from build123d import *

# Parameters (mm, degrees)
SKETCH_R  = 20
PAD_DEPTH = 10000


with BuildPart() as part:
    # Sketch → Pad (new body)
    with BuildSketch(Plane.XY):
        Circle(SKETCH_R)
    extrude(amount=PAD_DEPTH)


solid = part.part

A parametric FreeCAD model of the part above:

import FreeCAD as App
import Part
import Sketcher
Q = App.Units.Quantity

doc = App.newDocument("Part")
body = doc.addObject("PartDesign::Body", "Body")

# Sketch on XY plane
sketch1 = body.newObject("Sketcher::SketchObject", "Sketch")
sketch1.AttachmentSupport = (doc.getObject("XY_Plane"), [""])
sketch1.MapMode = "FlatFace"
sketch1.addGeometry(Part.Circle(App.Vector(0, 0, 0), App.Vector(0, 0, 1), 20), False)
sketch1.addConstraint([
    Sketcher.Constraint("Coincident", 0, 3, -1, 1),
    Sketcher.Constraint("Diameter", 0, Q("40 mm")),
])
pad1 = body.newObject("PartDesign::Pad", "Pad")
pad1.Profile = sketch1
pad1.Length = 10000

doc.recompute()
